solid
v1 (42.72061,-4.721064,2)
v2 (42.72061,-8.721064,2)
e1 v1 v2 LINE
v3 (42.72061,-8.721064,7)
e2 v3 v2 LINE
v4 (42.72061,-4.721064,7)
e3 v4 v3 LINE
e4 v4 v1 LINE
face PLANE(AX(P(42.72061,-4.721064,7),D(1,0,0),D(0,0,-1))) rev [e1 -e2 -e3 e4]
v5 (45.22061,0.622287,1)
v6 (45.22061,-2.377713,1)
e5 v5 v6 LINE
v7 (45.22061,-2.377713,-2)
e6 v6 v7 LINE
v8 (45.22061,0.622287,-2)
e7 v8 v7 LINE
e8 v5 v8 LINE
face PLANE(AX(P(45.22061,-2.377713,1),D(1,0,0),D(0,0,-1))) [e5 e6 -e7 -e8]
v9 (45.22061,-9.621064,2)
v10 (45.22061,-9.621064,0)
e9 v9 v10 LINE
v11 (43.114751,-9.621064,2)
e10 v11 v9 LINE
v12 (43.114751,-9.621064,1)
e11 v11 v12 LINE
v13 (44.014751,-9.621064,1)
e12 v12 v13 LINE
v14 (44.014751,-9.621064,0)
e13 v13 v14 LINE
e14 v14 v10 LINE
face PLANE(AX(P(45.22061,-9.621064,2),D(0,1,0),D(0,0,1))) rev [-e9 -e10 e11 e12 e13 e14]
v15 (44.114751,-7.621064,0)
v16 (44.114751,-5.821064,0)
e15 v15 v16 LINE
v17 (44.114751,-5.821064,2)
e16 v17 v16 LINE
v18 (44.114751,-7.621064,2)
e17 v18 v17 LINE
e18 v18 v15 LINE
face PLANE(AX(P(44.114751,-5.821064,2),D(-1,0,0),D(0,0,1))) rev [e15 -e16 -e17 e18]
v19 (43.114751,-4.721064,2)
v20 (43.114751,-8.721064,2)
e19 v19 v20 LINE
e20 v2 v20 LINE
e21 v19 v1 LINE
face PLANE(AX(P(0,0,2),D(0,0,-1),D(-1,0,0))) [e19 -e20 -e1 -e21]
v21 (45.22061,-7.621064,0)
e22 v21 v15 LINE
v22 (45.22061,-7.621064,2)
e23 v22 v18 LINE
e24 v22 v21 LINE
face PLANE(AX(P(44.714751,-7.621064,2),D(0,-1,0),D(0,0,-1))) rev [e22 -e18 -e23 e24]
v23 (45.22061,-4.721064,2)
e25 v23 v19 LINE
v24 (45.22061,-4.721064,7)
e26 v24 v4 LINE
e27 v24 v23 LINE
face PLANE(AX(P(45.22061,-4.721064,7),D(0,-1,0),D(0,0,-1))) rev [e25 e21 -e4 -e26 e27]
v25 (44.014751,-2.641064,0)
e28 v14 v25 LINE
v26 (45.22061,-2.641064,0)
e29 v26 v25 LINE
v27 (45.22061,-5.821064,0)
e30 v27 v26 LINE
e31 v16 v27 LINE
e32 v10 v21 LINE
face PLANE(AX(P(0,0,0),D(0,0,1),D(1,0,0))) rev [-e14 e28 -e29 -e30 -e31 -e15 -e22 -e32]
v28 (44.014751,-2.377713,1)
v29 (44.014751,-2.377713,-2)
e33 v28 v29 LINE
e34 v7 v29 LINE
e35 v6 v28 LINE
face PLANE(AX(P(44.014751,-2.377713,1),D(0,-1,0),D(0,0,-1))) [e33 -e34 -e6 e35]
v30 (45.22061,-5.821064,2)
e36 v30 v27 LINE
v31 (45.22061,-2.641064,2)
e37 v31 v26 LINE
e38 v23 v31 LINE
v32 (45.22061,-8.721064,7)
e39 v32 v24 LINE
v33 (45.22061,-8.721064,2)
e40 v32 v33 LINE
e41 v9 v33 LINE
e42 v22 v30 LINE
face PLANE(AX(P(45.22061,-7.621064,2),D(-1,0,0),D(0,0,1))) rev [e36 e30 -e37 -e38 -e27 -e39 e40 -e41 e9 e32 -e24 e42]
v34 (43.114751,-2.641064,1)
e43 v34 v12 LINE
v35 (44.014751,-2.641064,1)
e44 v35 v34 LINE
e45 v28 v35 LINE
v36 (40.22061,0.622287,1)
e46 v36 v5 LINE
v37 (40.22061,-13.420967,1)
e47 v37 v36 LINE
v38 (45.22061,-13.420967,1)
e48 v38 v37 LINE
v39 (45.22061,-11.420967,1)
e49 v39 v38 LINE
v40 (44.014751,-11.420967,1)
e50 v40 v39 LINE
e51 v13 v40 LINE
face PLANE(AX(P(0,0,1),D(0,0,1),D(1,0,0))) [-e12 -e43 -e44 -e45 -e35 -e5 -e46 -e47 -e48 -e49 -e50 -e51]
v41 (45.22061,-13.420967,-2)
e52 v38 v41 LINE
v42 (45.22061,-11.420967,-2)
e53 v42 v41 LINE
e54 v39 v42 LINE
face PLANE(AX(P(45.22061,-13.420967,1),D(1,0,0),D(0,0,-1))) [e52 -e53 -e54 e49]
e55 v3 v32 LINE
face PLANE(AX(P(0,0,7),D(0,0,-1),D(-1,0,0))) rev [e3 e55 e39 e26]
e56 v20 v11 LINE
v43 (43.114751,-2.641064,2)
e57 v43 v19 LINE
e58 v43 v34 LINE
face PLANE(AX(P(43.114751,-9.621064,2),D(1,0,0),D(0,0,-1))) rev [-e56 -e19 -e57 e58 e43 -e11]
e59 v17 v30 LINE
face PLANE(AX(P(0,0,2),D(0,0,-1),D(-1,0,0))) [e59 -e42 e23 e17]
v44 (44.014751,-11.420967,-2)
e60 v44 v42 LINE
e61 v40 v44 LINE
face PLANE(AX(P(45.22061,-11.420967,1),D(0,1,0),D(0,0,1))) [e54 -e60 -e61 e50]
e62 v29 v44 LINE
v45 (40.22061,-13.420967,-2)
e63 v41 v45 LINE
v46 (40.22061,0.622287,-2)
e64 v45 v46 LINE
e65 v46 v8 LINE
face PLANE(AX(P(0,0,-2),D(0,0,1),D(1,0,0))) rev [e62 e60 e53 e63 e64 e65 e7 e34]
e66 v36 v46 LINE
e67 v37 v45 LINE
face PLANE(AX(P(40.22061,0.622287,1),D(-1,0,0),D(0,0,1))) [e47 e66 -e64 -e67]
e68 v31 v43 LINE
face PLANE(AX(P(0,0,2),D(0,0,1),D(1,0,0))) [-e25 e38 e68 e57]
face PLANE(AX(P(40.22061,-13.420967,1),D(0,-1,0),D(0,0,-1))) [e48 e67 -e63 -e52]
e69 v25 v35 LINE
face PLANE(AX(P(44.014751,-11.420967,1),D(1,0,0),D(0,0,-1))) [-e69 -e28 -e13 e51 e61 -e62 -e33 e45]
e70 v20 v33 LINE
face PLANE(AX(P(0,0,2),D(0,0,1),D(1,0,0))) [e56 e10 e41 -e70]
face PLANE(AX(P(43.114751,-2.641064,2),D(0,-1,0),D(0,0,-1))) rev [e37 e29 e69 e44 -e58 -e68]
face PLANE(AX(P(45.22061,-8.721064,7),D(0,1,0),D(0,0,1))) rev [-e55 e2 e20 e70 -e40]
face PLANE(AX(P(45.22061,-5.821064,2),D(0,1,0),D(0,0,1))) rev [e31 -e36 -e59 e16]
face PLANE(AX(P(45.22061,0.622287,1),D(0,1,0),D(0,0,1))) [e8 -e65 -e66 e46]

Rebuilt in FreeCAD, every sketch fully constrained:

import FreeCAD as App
import Part
import Sketcher

V = App.Vector
Q = App.Units.Quantity


def add_polygon(sketch, points):
    """Adds a closed chain of lines whose ends are joined by coincident constraints."""
    first, n = sketch.GeometryCount, len(points)
    for a, b in zip(points, points[1:] + points[:1]):
        sketch.addGeometry(Part.LineSegment(App.Vector(*a, 0), App.Vector(*b, 0)), False)
    for i in range(n):
        sketch.addConstraint(Sketcher.Constraint("Coincident", first + i, 2, first + (i + 1) % n, 1))

doc = App.newDocument("Part")
params = doc.addObject("Spreadsheet::Sheet", "Params")
for row, (alias, value) in enumerate([
    ("sketch1_height", "2 mm"),
    ("sketch1_height2", "1.8 mm"),
    ("sketch1_height3", "3.18 mm"),
    ("pad1_length", "2 mm"),
    ("sketch2_height", "4 mm"),
    ("sketch2_width", "2.5 mm"),
    ("pad2_length", "5 mm"),
    ("sketch3_width", "5 mm"),
    ("sketch3_height", "2 mm"),
    ("sketch3_height2", "3 mm"),
    ("pad3_length", "2 mm"),
    ("pad3_length2", "1 mm"),
], start=1):
    params.set(f"A{row}", alias)
    params.set(f"B{row}", "=" + value)
    params.setAlias(f"B{row}", alias)

body = doc.addObject("PartDesign::Body", "Body")

# Sketch on XY plane
sketch1 = doc.addObject("Sketcher::SketchObject", "Sketch")
body.addObject(sketch1)
sketch1.AttachmentSupport = (doc.XY_Plane, [""])
sketch1.MapMode = "FlatFace"
add_polygon(sketch1, [(44.114751, -7.621064), (44.114751, -5.821064), (45.22061, -5.821064), (45.22061, -2.641064), (43.114751, -2.641064), (43.114751, -9.621064), (45.22061, -9.621064), (45.22061, -7.621064)])  # lines 0-7
sketch1.addConstraint([
    Sketcher.Constraint("Vertical", 0),
    Sketcher.Constraint("Horizontal", 1),
    Sketcher.Constraint("Vertical", 2),
    Sketcher.Constraint("Horizontal", 3),
    Sketcher.Constraint("Vertical", 4),
    Sketcher.Constraint("Horizontal", 5),
    Sketcher.Constraint("Vertical", 6),
    Sketcher.Constraint("Horizontal", 7),
    Sketcher.Constraint("Vertical", 2, 2, 5, 2),
    Sketcher.Constraint("DistanceY", 6, 1, 6, 2, Q("2 mm")),
    Sketcher.Constraint("DistanceY", 0, 1, 0, 2, Q("1.8 mm")),
    Sketcher.Constraint("DistanceX", 3, 2, 0, 2, Q("1 mm")),
    Sketcher.Constraint("DistanceY", 2, 1, 2, 2, Q("3.18 mm")),
    Sketcher.Constraint("DistanceX", 1, 1, 1, 2, Q("1.105858 mm")),
    Sketcher.Constraint("DistanceX", -1, 1, 0, 2, Q("44.114751 mm")),
    Sketcher.Constraint("DistanceY", 0, 2, -1, 1, Q("5.821064 mm")),
])
sketch1.setExpression("Constraints[17]", "Params.sketch1_height")
sketch1.setExpression("Constraints[18]", "Params.sketch1_height2")
sketch1.setExpression("Constraints[20]", "Params.sketch1_height3")
pad1 = doc.addObject("PartDesign::Pad", "Pad")
body.addObject(pad1)
pad1.Profile = sketch1
pad1.setExpression("Length", "Params.pad1_length")

# Sketch on XY plane
sketch2 = doc.addObject("Sketcher::SketchObject", "Sketch001")
body.addObject(sketch2)
sketch2.AttachmentSupport = (doc.XY_Plane, [""])
sketch2.MapMode = "FlatFace"
sketch2.AttachmentOffset = App.Placement(V(0, 0, 2), App.Rotation())
add_polygon(sketch2, [(42.72061, -4.721064), (42.72061, -8.721064), (45.22061, -8.721064), (45.22061, -4.721064)])  # lines 0-3
sketch2.addConstraint([
    Sketcher.Constraint("Vertical", 0),
    Sketcher.Constraint("Horizontal", 1),
    Sketcher.Constraint("Vertical", 2),
    Sketcher.Constraint("Horizontal", 3),
    Sketcher.Constraint("DistanceY", 0, 2, 0, 1, Q("4 mm")),
    Sketcher.Constraint("DistanceX", 1, 1, 1, 2, Q("2.5 mm")),
    Sketcher.Constraint("DistanceX", -1, 1, 0, 2, Q("42.72061 mm")),
    Sketcher.Constraint("DistanceY", 0, 2, -1, 1, Q("8.721064 mm")),
])
sketch2.setExpression("Constraints[8]", "Params.sketch2_height")
sketch2.setExpression("Constraints[9]", "Params.sketch2_width")
pad2 = doc.addObject("PartDesign::Pad", "Pad001")
body.addObject(pad2)
pad2.Profile = sketch2
pad2.setExpression("Length", "Params.pad2_length")

# Sketch on XY plane
sketch3 = doc.addObject("Sketcher::SketchObject", "Sketch002")
body.addObject(sketch3)
sketch3.AttachmentSupport = (doc.XY_Plane, [""])
sketch3.MapMode = "FlatFace"
add_polygon(sketch3, [(44.014751, -2.377713), (44.014751, -11.420967), (45.22061, -11.420967), (45.22061, -13.420967), (40.22061, -13.420967), (40.22061, 0.622287), (45.22061, 0.622287), (45.22061, -2.377713)])  # lines 0-7
sketch3.addConstraint([
    Sketcher.Constraint("Vertical", 0),
    Sketcher.Constraint("Horizontal", 1),
    Sketcher.Constraint("Vertical", 2),
    Sketcher.Constraint("Horizontal", 3),
    Sketcher.Constraint("Vertical", 4),
    Sketcher.Constraint("Horizontal", 5),
    Sketcher.Constraint("Vertical", 6),
    Sketcher.Constraint("Horizontal", 7),
    Sketcher.Constraint("Vertical", 2, 2, 5, 2),
    Sketcher.Constraint("DistanceX", 3, 2, 3, 1, Q("5 mm")),
    Sketcher.Constraint("DistanceY", 2, 2, 2, 1, Q("2 mm")),
    Sketcher.Constraint("DistanceY", 6, 2, 6, 1, Q("3 mm")),
    Sketcher.Constraint("DistanceX", 1, 1, 1, 2, Q("1.205858 mm")),
    Sketcher.Constraint("DistanceY", 0, 2, 0, 1, Q("9.043254 mm")),
    Sketcher.Constraint("DistanceX", -1, 1, 0, 2, Q("44.014751 mm")),
    Sketcher.Constraint("DistanceY", 0, 2, -1, 1, Q("11.420967 mm")),
])
sketch3.setExpression("Constraints[17]", "Params.sketch3_width")
sketch3.setExpression("Constraints[18]", "Params.sketch3_height")
sketch3.setExpression("Constraints[19]", "Params.sketch3_height2")
pad3 = doc.addObject("PartDesign::Pad", "Pad002")
body.addObject(pad3)
pad3.Profile = sketch3
pad3.Type = "TwoLengths"
pad3.setExpression("Length", "Params.pad3_length")
pad3.setExpression("Length2", "Params.pad3_length2")
pad3.Reversed = True

doc.recompute()
